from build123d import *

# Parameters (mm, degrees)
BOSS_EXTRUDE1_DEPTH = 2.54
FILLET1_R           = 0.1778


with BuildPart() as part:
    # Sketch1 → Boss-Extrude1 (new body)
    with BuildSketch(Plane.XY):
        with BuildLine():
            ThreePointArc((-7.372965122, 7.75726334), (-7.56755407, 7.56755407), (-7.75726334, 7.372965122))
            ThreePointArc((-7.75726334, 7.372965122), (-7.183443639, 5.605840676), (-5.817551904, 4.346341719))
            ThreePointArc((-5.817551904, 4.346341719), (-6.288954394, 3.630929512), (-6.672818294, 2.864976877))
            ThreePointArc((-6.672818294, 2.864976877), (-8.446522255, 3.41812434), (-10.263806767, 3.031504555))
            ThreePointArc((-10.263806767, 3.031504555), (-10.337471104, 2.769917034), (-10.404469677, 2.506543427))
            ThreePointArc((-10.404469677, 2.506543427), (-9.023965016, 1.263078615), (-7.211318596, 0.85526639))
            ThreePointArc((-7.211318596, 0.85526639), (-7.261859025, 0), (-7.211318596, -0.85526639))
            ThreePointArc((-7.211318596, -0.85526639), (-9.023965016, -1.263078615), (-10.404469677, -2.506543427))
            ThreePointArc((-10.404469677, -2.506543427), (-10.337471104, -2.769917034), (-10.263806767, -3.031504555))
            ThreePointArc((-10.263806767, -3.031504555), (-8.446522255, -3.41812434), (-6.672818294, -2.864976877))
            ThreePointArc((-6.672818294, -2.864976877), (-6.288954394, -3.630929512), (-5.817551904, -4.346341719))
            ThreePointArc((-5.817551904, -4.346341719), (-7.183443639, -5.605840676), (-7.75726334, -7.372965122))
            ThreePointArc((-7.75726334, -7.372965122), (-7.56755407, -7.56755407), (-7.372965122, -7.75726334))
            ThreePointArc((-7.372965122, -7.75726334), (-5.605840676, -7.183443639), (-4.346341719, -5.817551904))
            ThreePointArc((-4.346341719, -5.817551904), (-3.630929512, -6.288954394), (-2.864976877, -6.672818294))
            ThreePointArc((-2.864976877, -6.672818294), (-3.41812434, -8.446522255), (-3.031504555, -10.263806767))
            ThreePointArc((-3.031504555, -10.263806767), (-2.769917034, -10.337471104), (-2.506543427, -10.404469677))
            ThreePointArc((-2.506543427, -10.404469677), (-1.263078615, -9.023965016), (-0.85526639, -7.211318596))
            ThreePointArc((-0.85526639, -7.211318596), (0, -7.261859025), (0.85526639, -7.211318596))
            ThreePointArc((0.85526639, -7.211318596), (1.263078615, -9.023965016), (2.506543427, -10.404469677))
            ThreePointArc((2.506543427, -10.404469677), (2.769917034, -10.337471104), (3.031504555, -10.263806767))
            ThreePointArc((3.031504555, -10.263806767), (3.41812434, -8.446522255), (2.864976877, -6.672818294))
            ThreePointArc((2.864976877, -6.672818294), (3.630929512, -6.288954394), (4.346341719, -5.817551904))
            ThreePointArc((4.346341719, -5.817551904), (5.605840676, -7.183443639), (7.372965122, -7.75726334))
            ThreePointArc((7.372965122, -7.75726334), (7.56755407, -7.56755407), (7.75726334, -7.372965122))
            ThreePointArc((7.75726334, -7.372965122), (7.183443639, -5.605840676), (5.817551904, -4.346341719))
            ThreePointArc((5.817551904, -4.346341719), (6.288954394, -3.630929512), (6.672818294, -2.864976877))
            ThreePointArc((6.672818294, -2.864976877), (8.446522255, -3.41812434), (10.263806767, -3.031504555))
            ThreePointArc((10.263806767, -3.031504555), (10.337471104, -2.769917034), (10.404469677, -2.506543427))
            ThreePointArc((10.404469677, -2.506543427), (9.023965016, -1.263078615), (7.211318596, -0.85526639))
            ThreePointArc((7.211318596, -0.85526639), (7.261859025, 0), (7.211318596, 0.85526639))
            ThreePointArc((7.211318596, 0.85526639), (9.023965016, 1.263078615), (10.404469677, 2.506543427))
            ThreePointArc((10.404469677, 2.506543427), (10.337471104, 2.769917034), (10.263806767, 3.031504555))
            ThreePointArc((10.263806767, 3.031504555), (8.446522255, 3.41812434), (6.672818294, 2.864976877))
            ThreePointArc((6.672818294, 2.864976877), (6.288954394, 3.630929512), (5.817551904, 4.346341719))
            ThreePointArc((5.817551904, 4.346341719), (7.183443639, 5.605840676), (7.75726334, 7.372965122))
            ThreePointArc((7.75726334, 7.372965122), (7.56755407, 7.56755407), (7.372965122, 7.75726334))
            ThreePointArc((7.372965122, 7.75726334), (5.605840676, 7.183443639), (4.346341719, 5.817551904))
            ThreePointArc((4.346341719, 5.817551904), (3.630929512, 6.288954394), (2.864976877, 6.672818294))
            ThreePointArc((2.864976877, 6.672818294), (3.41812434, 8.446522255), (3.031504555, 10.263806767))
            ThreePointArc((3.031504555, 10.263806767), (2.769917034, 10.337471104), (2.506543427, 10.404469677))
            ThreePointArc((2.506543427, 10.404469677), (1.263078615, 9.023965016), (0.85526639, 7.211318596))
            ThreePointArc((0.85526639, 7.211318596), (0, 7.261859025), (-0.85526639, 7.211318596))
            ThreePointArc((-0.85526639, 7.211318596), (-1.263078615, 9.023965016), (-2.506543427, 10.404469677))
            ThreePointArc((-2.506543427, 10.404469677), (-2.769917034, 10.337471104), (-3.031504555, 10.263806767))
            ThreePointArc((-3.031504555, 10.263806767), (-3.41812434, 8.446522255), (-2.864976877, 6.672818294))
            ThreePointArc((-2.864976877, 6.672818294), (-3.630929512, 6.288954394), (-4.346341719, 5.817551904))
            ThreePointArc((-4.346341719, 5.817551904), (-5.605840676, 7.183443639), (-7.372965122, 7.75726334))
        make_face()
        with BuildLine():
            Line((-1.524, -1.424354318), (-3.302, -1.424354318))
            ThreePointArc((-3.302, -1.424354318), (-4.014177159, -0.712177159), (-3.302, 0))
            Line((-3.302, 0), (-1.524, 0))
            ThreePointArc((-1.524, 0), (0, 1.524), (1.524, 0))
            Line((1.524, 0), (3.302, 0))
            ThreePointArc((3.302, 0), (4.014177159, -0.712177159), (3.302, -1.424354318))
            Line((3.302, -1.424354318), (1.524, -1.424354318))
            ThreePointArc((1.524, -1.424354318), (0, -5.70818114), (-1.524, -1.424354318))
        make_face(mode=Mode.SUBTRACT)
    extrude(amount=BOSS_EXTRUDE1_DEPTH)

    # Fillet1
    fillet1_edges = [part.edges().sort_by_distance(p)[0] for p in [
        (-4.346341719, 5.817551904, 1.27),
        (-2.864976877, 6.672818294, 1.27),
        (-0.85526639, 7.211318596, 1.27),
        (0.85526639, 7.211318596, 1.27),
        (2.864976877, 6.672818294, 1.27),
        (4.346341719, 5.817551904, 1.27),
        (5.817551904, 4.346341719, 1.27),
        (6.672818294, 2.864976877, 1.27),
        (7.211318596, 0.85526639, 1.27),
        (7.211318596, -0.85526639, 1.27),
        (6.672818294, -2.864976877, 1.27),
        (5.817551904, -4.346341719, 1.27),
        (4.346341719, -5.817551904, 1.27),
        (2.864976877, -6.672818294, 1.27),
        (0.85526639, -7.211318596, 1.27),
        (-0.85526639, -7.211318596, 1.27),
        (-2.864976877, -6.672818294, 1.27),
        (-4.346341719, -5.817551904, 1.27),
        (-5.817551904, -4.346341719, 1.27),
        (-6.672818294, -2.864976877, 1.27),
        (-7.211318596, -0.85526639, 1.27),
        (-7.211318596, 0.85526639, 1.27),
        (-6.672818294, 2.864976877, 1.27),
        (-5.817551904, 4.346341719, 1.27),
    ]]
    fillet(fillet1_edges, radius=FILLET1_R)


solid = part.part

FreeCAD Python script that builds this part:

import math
import FreeCAD as App
import Part
import Sketcher

V = App.Vector
Q = App.Units.Quantity


def edges_at(feature, points):
    """Names of the edges that pass closest to the given points."""
    edges = feature.Shape.Edges
    near = lambda p: min(range(len(edges)), key=lambda i: edges[i].distToShape(Part.Vertex(*p))[0])
    return sorted({f"Edge{near(p) + 1}" for p in points})

doc = App.newDocument("Part")
body = doc.addObject("PartDesign::Body", "Body")

# Sketch on XY plane
sketch1 = body.newObject("Sketcher::SketchObject", "Sketch")
sketch1.AttachmentSupport = (doc.getObject("XY_Plane"), [""])
sketch1.MapMode = "FlatFace"
sketch1.addGeometry(Part.ArcOfCircle(Part.Circle(V(0, 0, 0), V(0, 0, 1), 10.7), math.radians(133.55), math.radians(136.45)), False)
sketch1.addGeometry(Part.ArcOfCircle(Part.Circle(V(-4.1, 7.6, 0), V(0, 0, 1), 3.7), math.radians(-177), math.radians(-118)), False)
sketch1.addGeometry(Part.ArcOfCircle(Part.Circle(V(0, 0, 0), V(0, 0, 1), 7.3), math.radians(143.24), math.radians(156.76)), False)
sketch1.addGeometry(Part.ArcOfCircle(Part.Circle(V(-8.6, -0.2, 0), V(0, 0, 1), 3.7), math.radians(58), math.radians(117)), False)
sketch1.addGeometry(Part.ArcOfCircle(Part.Circle(V(0, 0, 0), V(0, 0, 1), 10.7), math.radians(163.55), math.radians(166.45)), False)
sketch1.addGeometry(Part.ArcOfCircle(Part.Circle(V(-7.3, 4.5, 0), V(0, 0, 1), 3.7), math.radians(-147), math.radians(-88)), False)
sketch1.addGeometry(Part.ArcOfCircle(Part.Circle(V(0, 0, 0), V(0, 0, 1), 7.3), math.radians(173.24), math.radians(186.76)), False)
sketch1.addGeometry(Part.ArcOfCircle(Part.Circle(V(-7.3, -4.5, 0), V(0, 0, 1), 3.7), math.radians(88), math.radians(147)), False)
sketch1.addGeometry(Part.ArcOfCircle(Part.Circle(V(0, 0, 0), V(0, 0, 1), 10.7), math.radians(-166.45), math.radians(-163.55)), False)
sketch1.addGeometry(Part.ArcOfCircle(Part.Circle(V(-8.6, 0.2, 0), V(0, 0, 1), 3.7), math.radians(-117), math.radians(-58)), False)
sketch1.addGeometry(Part.ArcOfCircle(Part.Circle(V(0, 0, 0), V(0, 0, 1), 7.3), math.radians(-156.76), math.radians(-143.24)), False)
sketch1.addGeometry(Part.ArcOfCircle(Part.Circle(V(-4.1, -7.6, 0), V(0, 0, 1), 3.7), math.radians(118), math.radians(177)), False)
sketch1.addGeometry(Part.ArcOfCircle(Part.Circle(V(0, 0, 0), V(0, 0, 1), 10.7), math.radians(-136.45), math.radians(-133.55)), False)
sketch1.addGeometry(Part.ArcOfCircle(Part.Circle(V(-7.6, -4.1, 0), V(0, 0, 1), 3.7), math.radians(-87), math.radians(-28)), False)
sketch1.addGeometry(Part.ArcOfCircle(Part.Circle(V(0, 0, 0), V(0, 0, 1), 7.3), math.radians(-126.76), math.radians(-113.24)), False)
sketch1.addGeometry(Part.ArcOfCircle(Part.Circle(V(0.2, -8.6, 0), V(0, 0, 1), 3.7), math.radians(148), math.radians(207)), False)
sketch1.addGeometry(Part.ArcOfCircle(Part.Circle(V(0, 0, 0), V(0, 0, 1), 10.7), math.radians(-106.45), math.radians(-103.55)), False)
sketch1.addGeometry(Part.ArcOfCircle(Part.Circle(V(-4.5, -7.3, 0), V(0, 0, 1), 3.7), math.radians(-57), math.radians(2)), False)
sketch1.addGeometry(Part.ArcOfCircle(Part.Circle(V(0, 0, 0), V(0, 0, 1), 7.3), math.radians(-96.76), math.radians(-83.24)), False)
sketch1.addGeometry(Part.ArcOfCircle(Part.Circle(V(4.5, -7.3, 0), V(0, 0, 1), 3.7), math.radians(178), math.radians(237)), False)
sketch1.addGeometry(Part.ArcOfCircle(Part.Circle(V(0, 0, 0), V(0, 0, 1), 10.7), math.radians(-76.45), math.radians(-73.55)), False)
sketch1.addGeometry(Part.ArcOfCircle(Part.Circle(V(-0.2, -8.6, 0), V(0, 0, 1), 3.7), math.radians(-27), math.radians(32)), False)
sketch1.addGeometry(Part.ArcOfCircle(Part.Circle(V(0, 0, 0), V(0, 0, 1), 7.3), math.radians(-66.76), math.radians(-53.24)), False)
sketch1.addGeometry(Part.ArcOfCircle(Part.Circle(V(7.6, -4.1, 0), V(0, 0, 1), 3.7), math.radians(-152), math.radians(-93)), False)
sketch1.addGeometry(Part.ArcOfCircle(Part.Circle(V(0, 0, 0), V(0, 0, 1), 10.7), math.radians(-46.45), math.radians(-43.55)), False)
sketch1.addGeometry(Part.ArcOfCircle(Part.Circle(V(4.1, -7.6, 0), V(0, 0, 1), 3.7), math.radians(3), math.radians(62)), False)
sketch1.addGeometry(Part.ArcOfCircle(Part.Circle(V(0, 0, 0), V(0, 0, 1), 7.3), math.radians(-36.76), math.radians(-23.24)), False)
sketch1.addGeometry(Part.ArcOfCircle(Part.Circle(V(8.6, 0.2, 0), V(0, 0, 1), 3.7), math.radians(-122), math.radians(-63)), False)
sketch1.addGeometry(Part.ArcOfCircle(Part.Circle(V(0, 0, 0), V(0, 0, 1), 10.7), math.radians(-16.45), math.radians(-13.55)), False)
sketch1.addGeometry(Part.ArcOfCircle(Part.Circle(V(7.3, -4.5, 0), V(0, 0, 1), 3.7), math.radians(33), math.radians(92)), False)
sketch1.addGeometry(Part.ArcOfCircle(Part.Circle(V(0, 0, 0), V(0, 0, 1), 7.3), math.radians(-6.76), math.radians(6.76)), False)
sketch1.addGeometry(Part.ArcOfCircle(Part.Circle(V(7.3, 4.5, 0), V(0, 0, 1), 3.7), math.radians(-92), math.radians(-33)), False)
sketch1.addGeometry(Part.ArcOfCircle(Part.Circle(V(0, 0, 0), V(0, 0, 1), 10.7), math.radians(13.55), math.radians(16.45)), False)
sketch1.addGeometry(Part.ArcOfCircle(Part.Circle(V(8.6, -0.2, 0), V(0, 0, 1), 3.7), math.radians(63), math.radians(122)), False)
sketch1.addGeometry(Part.ArcOfCircle(Part.Circle(V(0, 0, 0), V(0, 0, 1), 7.3), math.radians(23.24), math.radians(36.76)), False)
sketch1.addGeometry(Part.ArcOfCircle(Part.Circle(V(4.1, 7.6, 0), V(0, 0, 1), 3.7), math.radians(-62), math.radians(-3)), False)
sketch1.addGeometry(Part.ArcOfCircle(Part.Circle(V(0, 0, 0), V(0, 0, 1), 10.7), math.radians(43.55), math.radians(46.45)), False)
sketch1.addGeometry(Part.ArcOfCircle(Part.Circle(V(7.6, 4.1, 0), V(0, 0, 1), 3.7), math.radians(93), math.radians(152)), False)
sketch1.addGeometry(Part.ArcOfCircle(Part.Circle(V(0, 0, 0), V(0, 0, 1), 7.3), math.radians(53.24), math.radians(66.76)), False)
sketch1.addGeometry(Part.ArcOfCircle(Part.Circle(V(-0.2, 8.6, 0), V(0, 0, 1), 3.7), math.radians(-32), math.radians(27)), False)
sketch1.addGeometry(Part.ArcOfCircle(Part.Circle(V(0, 0, 0), V(0, 0, 1), 10.7), math.radians(73.55), math.radians(76.45)), False)
sketch1.addGeometry(Part.ArcOfCircle(Part.Circle(V(4.5, 7.3, 0), V(0, 0, 1), 3.7), math.radians(123), math.radians(182)), False)
sketch1.addGeometry(Part.ArcOfCircle(Part.Circle(V(0, 0, 0), V(0, 0, 1), 7.3), math.radians(83.24), math.radians(96.76)), False)
sketch1.addGeometry(Part.ArcOfCircle(Part.Circle(V(-4.5, 7.3, 0), V(0, 0, 1), 3.7), math.radians(-2), math.radians(57)), False)
sketch1.addGeometry(Part.ArcOfCircle(Part.Circle(V(0, 0, 0), V(0, 0, 1), 10.7), math.radians(103.55), math.radians(106.45)), False)
sketch1.addGeometry(Part.ArcOfCircle(Part.Circle(V(0.2, 8.6, 0), V(0, 0, 1), 3.7), math.radians(153), math.radians(212)), False)
sketch1.addGeometry(Part.ArcOfCircle(Part.Circle(V(0, 0, 0), V(0, 0, 1), 7.3), math.radians(113.24), math.radians(126.76)), False)
sketch1.addGeometry(Part.ArcOfCircle(Part.Circle(V(-7.6, 4.1, 0), V(0, 0, 1), 3.7), math.radians(28), math.radians(87)), False)
sketch1.addGeometry(Part.ArcOfCircle(Part.Circle(V(0, -3.3, 0), V(0, 0, 1), 2.4), math.radians(129), math.radians(411)), False)
sketch1.addGeometry(Part.LineSegment(V(-1.5, -1.4, 0), V(-3.3, -1.4, 0)), False)
sketch1.addGeometry(Part.ArcOfCircle(Part.Circle(V(-3.3, -0.7, 0), V(0, 0, 1), 0.7), math.radians(90), math.radians(270)), False)
sketch1.addGeometry(Part.LineSegment(V(-3.3, 0, 0), V(-1.5, 0, 0)), False)
sketch1.addGeometry(Part.ArcOfCircle(Part.Circle(V(0, 0, 0), V(0, 0, 1), 1.5), math.radians(0), math.radians(180)), False)
sketch1.addGeometry(Part.LineSegment(V(1.5, 0, 0), V(3.3, 0, 0)), False)
sketch1.addGeometry(Part.ArcOfCircle(Part.Circle(V(3.3, -0.7, 0), V(0, 0, 1), 0.7), math.radians(-90), math.radians(90)), False)
sketch1.addGeometry(Part.LineSegment(V(3.3, -1.4, 0), V(1.5, -1.4, 0)), False)
sketch1.addConstraint(Sketcher.Constraint("Coincident", 0, 2, 1, 1))
sketch1.addConstraint(Sketcher.Constraint("Coincident", 1, 2, 2, 1))
sketch1.addConstraint(Sketcher.Constraint("Coincident", 2, 2, 3, 1))
sketch1.addConstraint(Sketcher.Constraint("Coincident", 3, 2, 4, 1))
sketch1.addConstraint(Sketcher.Constraint("Coincident", 4, 2, 5, 1))
sketch1.addConstraint(Sketcher.Constraint("Coincident", 5, 2, 6, 1))
sketch1.addConstraint(Sketcher.Constraint("Coincident", 6, 2, 7, 1))
sketch1.addConstraint(Sketcher.Constraint("Coincident", 7, 2, 8, 1))
sketch1.addConstraint(Sketcher.Constraint("Coincident", 8, 2, 9, 1))
sketch1.addConstraint(Sketcher.Constraint("Coincident", 9, 2, 10, 1))
sketch1.addConstraint(Sketcher.Constraint("Coincident", 10, 2, 11, 1))
sketch1.addConstraint(Sketcher.Constraint("Coincident", 11, 2, 12, 1))
sketch1.addConstraint(Sketcher.Constraint("Coincident", 12, 2, 13, 1))
sketch1.addConstraint(Sketcher.Constraint("Coincident", 13, 2, 14, 1))
sketch1.addConstraint(Sketcher.Constraint("Coincident", 14, 2, 15, 1))
sketch1.addConstraint(Sketcher.Constraint("Coincident", 15, 2, 16, 1))
sketch1.addConstraint(Sketcher.Constraint("Coincident", 16, 2, 17, 1))
sketch1.addConstraint(Sketcher.Constraint("Coincident", 17, 2, 18, 1))
sketch1.addConstraint(Sketcher.Constraint("Coincident", 18, 2, 19, 1))
sketch1.addConstraint(Sketcher.Constraint("Coincident", 19, 2, 20, 1))
sketch1.addConstraint(Sketcher.Constraint("Coincident", 20, 2, 21, 1))
sketch1.addConstraint(Sketcher.Constraint("Coincident", 21, 2, 22, 1))
sketch1.addConstraint(Sketcher.Constraint("Coincident", 22, 2, 23, 1))
sketch1.addConstraint(Sketcher.Constraint("Coincident", 23, 2, 24, 1))
sketch1.addConstraint(Sketcher.Constraint("Coincident", 24, 2, 25, 1))
sketch1.addConstraint(Sketcher.Constraint("Coincident", 25, 2, 26, 1))
sketch1.addConstraint(Sketcher.Constraint("Coincident", 26, 2, 27, 1))
sketch1.addConstraint(Sketcher.Constraint("Coincident", 27, 2, 28, 1))
sketch1.addConstraint(Sketcher.Constraint("Coincident", 28, 2, 29, 1))
sketch1.addConstraint(Sketcher.Constraint("Coincident", 29, 2, 30, 1))
sketch1.addConstraint(Sketcher.Constraint("Coincident", 30, 2, 31, 1))
sketch1.addConstraint(Sketcher.Constraint("Coincident", 31, 2, 32, 1))
sketch1.addConstraint(Sketcher.Constraint("Coincident", 32, 2, 33, 1))
sketch1.addConstraint(Sketcher.Constraint("Coincident", 33, 2, 34, 1))
sketch1.addConstraint(Sketcher.Constraint("Coincident", 34, 2, 35, 1))
sketch1.addConstraint(Sketcher.Constraint("Coincident", 35, 2, 36, 1))
sketch1.addConstraint(Sketcher.Constraint("Coincident", 36, 2, 37, 1))
sketch1.addConstraint(Sketcher.Constraint("Coincident", 37, 2, 38, 1))
sketch1.addConstraint(Sketcher.Constraint("Coincident", 38, 2, 39, 1))
sketch1.addConstraint(Sketcher.Constraint("Coincident", 39, 2, 40, 1))
sketch1.addConstraint(Sketcher.Constraint("Coincident", 40, 2, 41, 1))
sketch1.addConstraint(Sketcher.Constraint("Coincident", 41, 2, 42, 1))
sketch1.addConstraint(Sketcher.Constraint("Coincident", 42, 2, 43, 1))
sketch1.addConstraint(Sketcher.Constraint("Coincident", 43, 2, 44, 1))
sketch1.addConstraint(Sketcher.Constraint("Coincident", 44, 2, 45, 1))
sketch1.addConstraint(Sketcher.Constraint("Coincident", 45, 2, 46, 1))
sketch1.addConstraint(Sketcher.Constraint("Coincident", 46, 2, 47, 1))
sketch1.addConstraint(Sketcher.Constraint("Coincident", 47, 2, 0, 1))
sketch1.addConstraint(Sketcher.Constraint("Coincident", 48, 1, 49, 1))
sketch1.addConstraint(Sketcher.Constraint("Tangent", 49, 2, 50, 2))
sketch1.addConstraint(Sketcher.Constraint("Tangent", 50, 1, 51, 1))
sketch1.addConstraint(Sketcher.Constraint("Coincident", 51, 2, 52, 2))
sketch1.addConstraint(Sketcher.Constraint("Coincident", 52, 1, 53, 1))
sketch1.addConstraint(Sketcher.Constraint("Tangent", 53, 2, 54, 2))
sketch1.addConstraint(Sketcher.Constraint("Tangent", 54, 1, 55, 1))
sketch1.addConstraint(Sketcher.Constraint("Coincident", 55, 2, 48, 2))
sketch1.addConstraint(Sketcher.Constraint("Horizontal", 49))
sketch1.addConstraint(Sketcher.Constraint("Horizontal", 51))
sketch1.addConstraint(Sketcher.Constraint("Horizontal", 53))
sketch1.addConstraint(Sketcher.Constraint("Horizontal", 55))
sketch1.addConstraint(Sketcher.Constraint("Coincident", 0, 3, -1, 1))
sketch1.addConstraint(Sketcher.Constraint("Coincident", 2, 3, -1, 1))
sketch1.addConstraint(Sketcher.Constraint("Coincident", 4, 3, -1, 1))
sketch1.addConstraint(Sketcher.Constraint("Coincident", 6, 3, -1, 1))
sketch1.addConstraint(Sketcher.Constraint("Coincident", 8, 3, -1, 1))
sketch1.addConstraint(Sketcher.Constraint("Coincident", 10, 3, -1, 1))
sketch1.addConstraint(Sketcher.Constraint("Coincident", 12, 3, -1, 1))
sketch1.addConstraint(Sketcher.Constraint("Coincident", 14, 3, -1, 1))
sketch1.addConstraint(Sketcher.Constraint("Coincident", 16, 3, -1, 1))
sketch1.addConstraint(Sketcher.Constraint("Coincident", 18, 3, -1, 1))
sketch1.addConstraint(Sketcher.Constraint("Coincident", 20, 3, -1, 1))
sketch1.addConstraint(Sketcher.Constraint("Coincident", 22, 3, -1, 1))
sketch1.addConstraint(Sketcher.Constraint("Coincident", 24, 3, -1, 1))
sketch1.addConstraint(Sketcher.Constraint("Coincident", 26, 3, -1, 1))
sketch1.addConstraint(Sketcher.Constraint("Coincident", 28, 3, -1, 1))
sketch1.addConstraint(Sketcher.Constraint("Coincident", 30, 3, -1, 1))
sketch1.addConstraint(Sketcher.Constraint("Coincident", 32, 3, -1, 1))
sketch1.addConstraint(Sketcher.Constraint("Coincident", 34, 3, -1, 1))
sketch1.addConstraint(Sketcher.Constraint("Coincident", 36, 3, -1, 1))
sketch1.addConstraint(Sketcher.Constraint("Coincident", 38, 3, -1, 1))
sketch1.addConstraint(Sketcher.Constraint("Coincident", 40, 3, -1, 1))
sketch1.addConstraint(Sketcher.Constraint("Coincident", 42, 3, -1, 1))
sketch1.addConstraint(Sketcher.Constraint("Coincident", 44, 3, -1, 1))
sketch1.addConstraint(Sketcher.Constraint("Coincident", 46, 3, -1, 1))
sketch1.addConstraint(Sketcher.Constraint("Coincident", 52, 3, -1, 1))
sketch1.addConstraint(Sketcher.Constraint("Equal", 1, 3))
sketch1.addConstraint(Sketcher.Constraint("Equal", 0, 4))
sketch1.addConstraint(Sketcher.Constraint("Equal", 3, 5))
sketch1.addConstraint(Sketcher.Constraint("Equal", 2, 6))
sketch1.addConstraint(Sketcher.Constraint("Equal", 5, 7))
sketch1.addConstraint(Sketcher.Constraint("Equal", 4, 8))
sketch1.addConstraint(Sketcher.Constraint("Equal", 7, 9))
sketch1.addConstraint(Sketcher.Constraint("Equal", 6, 10))
sketch1.addConstraint(Sketcher.Constraint("Equal", 9, 11))
sketch1.addConstraint(Sketcher.Constraint("Equal", 8, 12))
sketch1.addConstraint(Sketcher.Constraint("Equal", 11, 13))
sketch1.addConstraint(Sketcher.Constraint("Equal", 10, 14))
sketch1.addConstraint(Sketcher.Constraint("Equal", 13, 15))
sketch1.addConstraint(Sketcher.Constraint("Equal", 12, 16))
sketch1.addConstraint(Sketcher.Constraint("Equal", 15, 17))
sketch1.addConstraint(Sketcher.Constraint("Equal", 14, 18))
sketch1.addConstraint(Sketcher.Constraint("Equal", 17, 19))
sketch1.addConstraint(Sketcher.Constraint("Equal", 16, 20))
sketch1.addConstraint(Sketcher.Constraint("Equal", 19, 21))
sketch1.addConstraint(Sketcher.Constraint("Equal", 18, 22))
sketch1.addConstraint(Sketcher.Constraint("Equal", 21, 23))
sketch1.addConstraint(Sketcher.Constraint("Equal", 20, 24))
sketch1.addConstraint(Sketcher.Constraint("Equal", 23, 25))
sketch1.addConstraint(Sketcher.Constraint("Equal", 22, 26))
sketch1.addConstraint(Sketcher.Constraint("Equal", 25, 27))
sketch1.addConstraint(Sketcher.Constraint("Equal", 24, 28))
sketch1.addConstraint(Sketcher.Constraint("Equal", 27, 29))
sketch1.addConstraint(Sketcher.Constraint("Equal", 26, 30))
sketch1.addConstraint(Sketcher.Constraint("Equal", 29, 31))
sketch1.addConstraint(Sketcher.Constraint("Equal", 28, 32))
sketch1.addConstraint(Sketcher.Constraint("Equal", 31, 33))
sketch1.addConstraint(Sketcher.Constraint("Equal", 30, 34))
sketch1.addConstraint(Sketcher.Constraint("Equal", 33, 35))
sketch1.addConstraint(Sketcher.Constraint("Equal", 32, 36))
sketch1.addConstraint(Sketcher.Constraint("Equal", 35, 37))
sketch1.addConstraint(Sketcher.Constraint("Equal", 34, 38))
sketch1.addConstraint(Sketcher.Constraint("Equal", 37, 39))
sketch1.addConstraint(Sketcher.Constraint("Equal", 36, 40))
sketch1.addConstraint(Sketcher.Constraint("Equal", 39, 41))
sketch1.addConstraint(Sketcher.Constraint("Equal", 38, 42))
sketch1.addConstraint(Sketcher.Constraint("Equal", 41, 43))
sketch1.addConstraint(Sketcher.Constraint("Equal", 40, 44))
sketch1.addConstraint(Sketcher.Constraint("Equal", 43, 45))
sketch1.addConstraint(Sketcher.Constraint("Equal", 42, 46))
sketch1.addConstraint(Sketcher.Constraint("Equal", 45, 47))
sketch1.addConstraint(Sketcher.Constraint("Equal", 50, 54))
sketch1.addConstraint(Sketcher.Constraint("Symmetric", 1, 3, 25, 3, -1, 1))
sketch1.addConstraint(Sketcher.Constraint("Symmetric", 3, 3, 27, 3, -1, 1))
sketch1.addConstraint(Sketcher.Constraint("Symmetric", 5, 3, 29, 3, -1, 1))
sketch1.addConstraint(Sketcher.Constraint("Symmetric", 7, 3, 31, 3, -1, 1))
sketch1.addConstraint(Sketcher.Constraint("Symmetric", 9, 3, 33, 3, -1, 1))
sketch1.addConstraint(Sketcher.Constraint("Symmetric", 11, 3, 35, 3, -1, 1))
sketch1.addConstraint(Sketcher.Constraint("Symmetric", 13, 3, 37, 3, -1, 1))
sketch1.addConstraint(Sketcher.Constraint("Symmetric", 15, 3, 39, 3, -1, 1))
sketch1.addConstraint(Sketcher.Constraint("Symmetric", 17, 3, 41, 3, -1, 1))
sketch1.addConstraint(Sketcher.Constraint("Symmetric", 19, 3, 43, 3, -1, 1))
sketch1.addConstraint(Sketcher.Constraint("Symmetric", 21, 3, 45, 3, -1, 1))
sketch1.addConstraint(Sketcher.Constraint("Symmetric", 23, 3, 47, 3, -1, 1))
sketch1.addConstraint(Sketcher.Constraint("Symmetric", 50, 1, 53, 2, -1, 1))
sketch1.addConstraint(Sketcher.Constraint("Symmetric", 17, 3, 19, 3, -2))
sketch1.addConstraint(Sketcher.Constraint("Symmetric", 15, 3, 21, 3, -2))
sketch1.addConstraint(Sketcher.Constraint("Symmetric", 13, 3, 23, 3, -2))
sketch1.addConstraint(Sketcher.Constraint("Symmetric", 11, 3, 25, 3, -2))
sketch1.addConstraint(Sketcher.Constraint("Symmetric", 9, 3, 27, 3, -2))
sketch1.addConstraint(Sketcher.Constraint("Symmetric", 7, 3, 29, 3, -2))
sketch1.addConstraint(Sketcher.Constraint("Symmetric", 48, 1, 55, 2, -2))
sketch1.addConstraint(Sketcher.Constraint("Vertical", 48, 1, 51, 2))
sketch1.addConstraint(Sketcher.Constraint("Radius", 52, Q("0.06 in")))
sketch1.addConstraint(Sketcher.Constraint("Radius", 48, Q("0.095 in")))
sketch1.addConstraint(Sketcher.Constraint("DistanceX", 49, 2, 49, 1, Q("0.07 in")))
sketch1.addConstraint(Sketcher.Constraint("Radius", 2, Q("0.2859 in")))
sketch1.addConstraint(Sketcher.Constraint("Radius", 0, 10.702139))
sketch1.addConstraint(Sketcher.Constraint("Radius", 1, 3.669304))
sketch1.addConstraint(Sketcher.Constraint("Radius", 50, 0.712177))
sketch1.addConstraint(Sketcher.Constraint("DistanceX", 3, 3, -1, 1, 8.616499))
sketch1.addConstraint(Sketcher.Constraint("DistanceY", 15, 3, -1, 1, 8.616499))
sketch1.addConstraint(Sketcher.Constraint("DistanceY", 3, 3, -1, 1, 0.247241))
sketch1.addConstraint(Sketcher.Constraint("DistanceX", -1, 1, 15, 3, 0.247241))
sketch1.addConstraint(Sketcher.Constraint("DistanceX", 1, 2, -1, 1, 5.817552))
sketch1.addConstraint(Sketcher.Constraint("DistanceX", 4, 2, -1, 1, 10.40447))
sketch1.addConstraint(Sketcher.Constraint("DistanceX", 5, 2, -1, 1, 7.211319))
sketch1.addConstraint(Sketcher.Constraint("DistanceX", 13, 2, -1, 1, 4.346342))
sketch1.addConstraint(Sketcher.Constraint("DistanceY", 16, 2, -1, 1, 10.40447))
sketch1.addConstraint(Sketcher.Constraint("DistanceY", 17, 2, -1, 1, 7.211319))
sketch1.addConstraint(Sketcher.Constraint("DistanceX", 1, 3, -1, 1, 4.094133))
sketch1.addConstraint(Sketcher.Constraint("DistanceX", 13, 3, -1, 1, 7.585728))
pad1 = body.newObject("PartDesign::Pad", "Pad")
pad1.Profile = sketch1
pad1.Length = Q("0.1 in")
doc.recompute()

fillet = body.newObject("PartDesign::Fillet", "Fillet")
fillet.Base = (pad1, edges_at(pad1, [
    (-4.346, 5.818, 1.27),
    (-2.865, 6.673, 1.27),
    (-0.855, 7.211, 1.27),
    (0.855, 7.211, 1.27),
    (2.865, 6.673, 1.27),
    (4.346, 5.818, 1.27),
    (5.818, 4.346, 1.27),
    (6.673, 2.865, 1.27),
    (7.211, 0.855, 1.27),
    (7.211, -0.855, 1.27),
    (6.673, -2.865, 1.27),
    (5.818, -4.346, 1.27),
    (4.346, -5.818, 1.27),
    (2.865, -6.673, 1.27),
    (0.855, -7.211, 1.27),
    (-0.855, -7.211, 1.27),
    (-2.865, -6.673, 1.27),
    (-4.346, -5.818, 1.27),
    (-5.818, -4.346, 1.27),
    (-6.673, -2.865, 1.27),
    (-7.211, -0.855, 1.27),
    (-7.211, 0.855, 1.27),
    (-6.673, 2.865, 1.27),
    (-5.818, 4.346, 1.27),
]))
fillet.Radius = Q("0.007 in")

doc.recompute()
